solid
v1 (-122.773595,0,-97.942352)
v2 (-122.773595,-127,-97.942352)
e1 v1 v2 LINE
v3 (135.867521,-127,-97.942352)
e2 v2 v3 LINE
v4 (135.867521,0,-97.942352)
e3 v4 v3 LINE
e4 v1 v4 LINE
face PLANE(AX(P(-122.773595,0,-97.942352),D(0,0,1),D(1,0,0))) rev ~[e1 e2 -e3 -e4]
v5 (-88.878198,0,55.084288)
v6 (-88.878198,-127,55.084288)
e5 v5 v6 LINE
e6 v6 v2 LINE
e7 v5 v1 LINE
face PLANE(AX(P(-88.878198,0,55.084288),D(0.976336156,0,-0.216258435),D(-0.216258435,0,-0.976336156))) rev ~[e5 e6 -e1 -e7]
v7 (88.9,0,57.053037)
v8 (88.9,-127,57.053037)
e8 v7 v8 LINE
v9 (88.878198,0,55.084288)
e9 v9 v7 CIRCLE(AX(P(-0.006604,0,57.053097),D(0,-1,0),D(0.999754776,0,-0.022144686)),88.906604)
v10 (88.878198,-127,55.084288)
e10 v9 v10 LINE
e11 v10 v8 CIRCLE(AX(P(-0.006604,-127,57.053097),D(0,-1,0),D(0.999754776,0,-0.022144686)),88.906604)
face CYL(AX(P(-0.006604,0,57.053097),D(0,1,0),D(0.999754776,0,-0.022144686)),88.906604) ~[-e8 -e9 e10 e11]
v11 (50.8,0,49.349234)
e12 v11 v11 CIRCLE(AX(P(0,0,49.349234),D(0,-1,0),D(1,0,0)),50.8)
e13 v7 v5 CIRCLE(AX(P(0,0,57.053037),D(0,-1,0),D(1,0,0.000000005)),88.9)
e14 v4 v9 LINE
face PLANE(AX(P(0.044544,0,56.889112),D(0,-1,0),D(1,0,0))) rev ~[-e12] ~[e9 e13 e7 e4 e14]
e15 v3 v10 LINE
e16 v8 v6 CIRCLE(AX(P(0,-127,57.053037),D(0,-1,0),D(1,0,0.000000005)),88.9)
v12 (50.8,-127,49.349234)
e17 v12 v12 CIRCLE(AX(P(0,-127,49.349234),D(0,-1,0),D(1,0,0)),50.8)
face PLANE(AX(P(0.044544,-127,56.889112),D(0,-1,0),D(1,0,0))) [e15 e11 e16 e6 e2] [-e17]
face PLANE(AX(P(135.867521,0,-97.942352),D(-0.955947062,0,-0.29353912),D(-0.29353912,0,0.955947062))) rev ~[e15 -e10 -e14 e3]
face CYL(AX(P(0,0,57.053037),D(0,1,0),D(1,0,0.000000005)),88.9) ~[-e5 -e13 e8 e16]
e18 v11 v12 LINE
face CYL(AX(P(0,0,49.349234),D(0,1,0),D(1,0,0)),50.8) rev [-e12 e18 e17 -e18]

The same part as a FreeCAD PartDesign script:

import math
import FreeCAD as App
import Part
import Sketcher

V = App.Vector
Q = App.Units.Quantity

doc = App.newDocument("Part")
params = doc.addObject("Spreadsheet::Sheet", "Params")
for row, (alias, value) in enumerate([
    ("sketch1_diameter", "4 in"),
    ("sketch1_radius", "3.5 in"),
    ("pad1_length", "5 in"),
], start=1):
    params.set(f"A{row}", alias)
    params.set(f"B{row}", "=" + value)
    params.setAlias(f"B{row}", alias)

body = doc.addObject("PartDesign::Body", "Body")

# Sketch on XZ plane
sketch1 = body.newObject("Sketcher::SketchObject", "Sketch")
sketch1.AttachmentSupport = (doc.getObject("XZ_Plane"), [""])
sketch1.MapMode = "FlatFace"
sketch1.addGeometry(Part.ArcOfCircle(Part.Circle(V(-0.006604, 57.053097, 0), V(0, 0, 1), 88.906604), math.radians(-1.268901), math.radians(-0.000039)), False)
sketch1.addGeometry(Part.ArcOfCircle(Part.Circle(V(0, 57.053037, 0), V(0, 0, 1), 88.9), math.radians(0), math.radians(181.268956)), False)
sketch1.addGeometry(Part.LineSegment(V(-88.878198, 55.084288, 0), V(-122.773595, -97.942352, 0)), False)
sketch1.addGeometry(Part.LineSegment(V(-122.773595, -97.942352, 0), V(135.867521, -97.942352, 0)), False)
sketch1.addGeometry(Part.LineSegment(V(135.867521, -97.942352, 0), V(88.878198, 55.084288, 0)), False)
sketch1.addGeometry(Part.Circle(V(0, 49.349234, 0), V(0, 0, 1), 50.8), False)
sketch1.addConstraint(Sketcher.Constraint("Coincident", 0, 2, 1, 1))
sketch1.addConstraint(Sketcher.Constraint("Coincident", 1, 2, 2, 1))
sketch1.addConstraint(Sketcher.Constraint("Coincident", 2, 2, 3, 1))
sketch1.addConstraint(Sketcher.Constraint("Coincident", 3, 2, 4, 1))
sketch1.addConstraint(Sketcher.Constraint("Coincident", 4, 2, 0, 1))
sketch1.addConstraint(Sketcher.Constraint("Horizontal", 3))
sketch1.addConstraint(Sketcher.Constraint("PointOnObject", 1, 3, -2))
sketch1.addConstraint(Sketcher.Constraint("PointOnObject", 5, 3, -2))
sketch1.addConstraint(Sketcher.Constraint("Diameter", 5, Q("4 in")))
sketch1.addConstraint(Sketcher.Constraint("Radius", 1, Q("3.5 in")))
sketch1.addConstraint(Sketcher.Constraint("Radius", 0, Q("88.906604 mm")))
sketch1.addConstraint(Sketcher.Constraint("DistanceX", 1, 2, -1, 1, Q("88.878198 mm")))
sketch1.addConstraint(Sketcher.Constraint("DistanceX", 4, 2, 0, 2, Q("0.021802 mm")))
sketch1.addConstraint(Sketcher.Constraint("Distance", 4, Q("160.078571 mm")))
sketch1.addConstraint(Sketcher.Constraint("DistanceX", 3, 1, 3, 2, Q("258.641116 mm")))
sketch1.addConstraint(Sketcher.Constraint("DistanceY", 2, 2, -1, 1, Q("97.942352 mm")))
sketch1.addConstraint(Sketcher.Constraint("DistanceX", -1, 1, 3, 2, Q("135.867521 mm")))
sketch1.addConstraint(Sketcher.Constraint("DistanceY", 1, 2, 0, 3, Q("1.968809 mm")))
sketch1.addConstraint(Sketcher.Constraint("DistanceY", 1, 2, 0, 2, Q("1.968749 mm")))
sketch1.addConstraint(Sketcher.Constraint("DistanceY", -1, 1, 5, 3, Q("49.349234 mm")))
sketch1.setExpression("Constraints[8]", "Params.sketch1_diameter")
sketch1.setExpression("Constraints[9]", "Params.sketch1_radius")
pad1 = body.newObject("PartDesign::Pad", "Pad")
pad1.Profile = sketch1
pad1.setExpression("Length", "Params.pad1_length")

doc.recompute()
